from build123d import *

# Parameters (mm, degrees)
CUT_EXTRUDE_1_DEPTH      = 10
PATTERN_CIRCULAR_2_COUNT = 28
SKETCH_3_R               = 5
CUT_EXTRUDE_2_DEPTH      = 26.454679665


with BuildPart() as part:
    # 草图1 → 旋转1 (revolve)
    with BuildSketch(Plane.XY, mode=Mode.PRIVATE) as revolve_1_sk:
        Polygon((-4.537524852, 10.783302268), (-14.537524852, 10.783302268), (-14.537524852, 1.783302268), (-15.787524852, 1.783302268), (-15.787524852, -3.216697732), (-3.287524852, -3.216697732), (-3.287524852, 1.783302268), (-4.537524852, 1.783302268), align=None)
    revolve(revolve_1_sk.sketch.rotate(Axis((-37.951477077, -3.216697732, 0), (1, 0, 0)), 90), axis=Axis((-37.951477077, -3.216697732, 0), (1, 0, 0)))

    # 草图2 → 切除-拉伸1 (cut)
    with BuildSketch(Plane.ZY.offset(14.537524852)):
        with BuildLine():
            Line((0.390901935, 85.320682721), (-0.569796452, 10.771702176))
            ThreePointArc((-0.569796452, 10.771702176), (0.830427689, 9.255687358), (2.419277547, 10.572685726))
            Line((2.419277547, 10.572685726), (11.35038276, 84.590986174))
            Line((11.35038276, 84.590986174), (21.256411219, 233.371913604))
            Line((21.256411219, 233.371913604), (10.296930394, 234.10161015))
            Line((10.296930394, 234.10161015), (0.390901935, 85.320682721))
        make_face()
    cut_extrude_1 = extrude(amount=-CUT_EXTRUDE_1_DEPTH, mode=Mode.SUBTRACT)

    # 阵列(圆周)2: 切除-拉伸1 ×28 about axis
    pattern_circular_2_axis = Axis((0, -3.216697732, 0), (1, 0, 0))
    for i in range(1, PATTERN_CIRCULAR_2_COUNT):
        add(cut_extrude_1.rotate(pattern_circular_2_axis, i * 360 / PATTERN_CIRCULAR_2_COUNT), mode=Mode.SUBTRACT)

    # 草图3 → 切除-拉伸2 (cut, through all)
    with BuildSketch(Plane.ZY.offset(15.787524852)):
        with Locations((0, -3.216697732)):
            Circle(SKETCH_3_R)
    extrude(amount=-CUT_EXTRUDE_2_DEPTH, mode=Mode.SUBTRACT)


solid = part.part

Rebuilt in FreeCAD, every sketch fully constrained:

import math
import FreeCAD as App
import Part
import Sketcher

V = App.Vector
Q = App.Units.Quantity

doc = App.newDocument("Part")
params = doc.addObject("Spreadsheet::Sheet", "Params")
for row, (alias, value) in enumerate([
    ("sketch1_width", "10 mm"),
    ("sketch1_height", "9 mm"),
    ("sketch1_height2", "5 mm"),
    ("sketch1_width2", "12.5 mm"),
    ("revolution_angle", "360 deg"),
    ("sketch2_radius", "1.5 mm"),
    ("pocket1_length", "10 mm"),
    ("sketch3_diameter", "10 mm"),
], start=1):
    params.set(f"A{row}", alias)
    params.set(f"B{row}", "=" + value)
    params.setAlias(f"B{row}", alias)

body = doc.addObject("PartDesign::Body", "Body")

# Sketch on XY plane
sketch1 = body.newObject("Sketcher::SketchObject", "Sketch")
sketch1.AttachmentSupport = (doc.getObject("XY_Plane"), [""])
sketch1.MapMode = "FlatFace"
sketch1.addGeometry([
    Part.LineSegment(V(-4.5, 10.8, 0), V(-14.5, 10.8, 0)),  # 0
    Part.LineSegment(V(-14.5, 10.8, 0), V(-14.5, 1.8, 0)),  # 1
    Part.LineSegment(V(-14.5, 1.8, 0), V(-15.8, 1.8, 0)),  # 2
    Part.LineSegment(V(-15.8, 1.8, 0), V(-15.8, -3.2, 0)),  # 3
    Part.LineSegment(V(-15.8, -3.2, 0), V(-3.3, -3.2, 0)),  # 4
    Part.LineSegment(V(-3.3, -3.2, 0), V(-3.3, 1.8, 0)),  # 5
    Part.LineSegment(V(-3.3, 1.8, 0), V(-4.5, 1.8, 0)),  # 6
    Part.LineSegment(V(-4.5, 1.8, 0), V(-4.5, 10.8, 0)),  # 7
], False)
sketch1.addGeometry(Part.LineSegment(V(-15.8, -3.2, 0), V(-3.3, -3.2, 0)), True)  # axis
sketch1.addConstraint([
    Sketcher.Constraint("Coincident", 0, 2, 1, 1),
    Sketcher.Constraint("Coincident", 1, 2, 2, 1),
    Sketcher.Constraint("Coincident", 2, 2, 3, 1),
    Sketcher.Constraint("Coincident", 3, 2, 4, 1),
    Sketcher.Constraint("Coincident", 4, 2, 5, 1),
    Sketcher.Constraint("Coincident", 5, 2, 6, 1),
    Sketcher.Constraint("Coincident", 6, 2, 7, 1),
    Sketcher.Constraint("Coincident", 7, 2, 0, 1),
    Sketcher.Constraint("Horizontal", 0),
    Sketcher.Constraint("Vertical", 1),
    Sketcher.Constraint("Horizontal", 2),
    Sketcher.Constraint("Vertical", 3),
    Sketcher.Constraint("Horizontal", 4),
    Sketcher.Constraint("Vertical", 5),
    Sketcher.Constraint("Horizontal", 6),
    Sketcher.Constraint("Vertical", 7),
    Sketcher.Constraint("Horizontal", 8),
    Sketcher.Constraint("Coincident", 8, 1, 3, 2),
    Sketcher.Constraint("Horizontal", 2, 2, 5, 2),
    Sketcher.Constraint("Vertical", 5, 2, 8, 2),
    Sketcher.Constraint("Equal", 2, 6),
    Sketcher.Constraint("DistanceX", 0, 2, 0, 1, Q("10 mm")),
    Sketcher.Constraint("DistanceY", 1, 2, 1, 1, Q("9 mm")),
    Sketcher.Constraint("DistanceY", 3, 2, 3, 1, Q("5 mm")),
    Sketcher.Constraint("DistanceX", 4, 1, 4, 2, Q("12.5 mm")),
    Sketcher.Constraint("DistanceX", 0, 2, -1, 1, Q("14.537525 mm")),
    Sketcher.Constraint("DistanceY", -1, 1, 0, 2, Q("10.783302 mm")),
])
sketch1.setExpression("Constraints[21]", "Params.sketch1_width")
sketch1.setExpression("Constraints[22]", "Params.sketch1_height")
sketch1.setExpression("Constraints[23]", "Params.sketch1_height2")
sketch1.setExpression("Constraints[24]", "Params.sketch1_width2")
revolution = body.newObject("PartDesign::Revolution", "Revolution")
revolution.Profile = sketch1
revolution.ReferenceAxis = (sketch1, ["Axis0"])
revolution.setExpression("Angle", "Params.revolution_angle")

# Sketch on YZ plane
sketch2 = body.newObject("Sketcher::SketchObject", "Sketch001")
sketch2.AttachmentSupport = (doc.getObject("YZ_Plane"), [""])
sketch2.MapMode = "FlatFace"
sketch2.AttachmentOffset = App.Placement(V(0, 0, -14.537525), App.Rotation())
sketch2.addGeometry([
    Part.LineSegment(V(85.3, 0.4, 0), V(10.8, -0.6, 0)),  # 0
    Part.ArcOfCircle(Part.Circle(V(10.8, 0.9, 0), V(0, 0, 1), 1.5), math.radians(97), math.radians(271)),  # 1
    Part.LineSegment(V(10.6, 2.4, 0), V(84.6, 11.4, 0)),  # 2
    Part.LineSegment(V(84.6, 11.4, 0), V(233.4, 21.3, 0)),  # 3
    Part.LineSegment(V(233.4, 21.3, 0), V(234.1, 10.3, 0)),  # 4
    Part.LineSegment(V(234.1, 10.3, 0), V(85.3, 0.4, 0)),  # 5
], False)
sketch2.addConstraint([
    Sketcher.Constraint("Tangent", 0, 2, 1, 2),
    Sketcher.Constraint("Tangent", 1, 1, 2, 1),
    Sketcher.Constraint("Coincident", 2, 2, 3, 1),
    Sketcher.Constraint("Coincident", 3, 2, 4, 1),
    Sketcher.Constraint("Coincident", 4, 2, 5, 1),
    Sketcher.Constraint("Coincident", 5, 2, 0, 1),
    Sketcher.Constraint("Perpendicular", 3, 4),
    Sketcher.Constraint("Perpendicular", 4, 5),
    Sketcher.Constraint("Equal", 0, 2),
    Sketcher.Constraint("Equal", 3, 5),
    Sketcher.Constraint("Radius", 1, Q("1.5 mm")),
    Sketcher.Constraint("DistanceY", -1, 1, 5, 2, Q("0.390902 mm")),
    Sketcher.Constraint("DistanceX", 1, 1, 2, 2, Q("74.0183 mm")),
    Sketcher.Constraint("DistanceY", 0, 2, 5, 2, Q("0.960698 mm")),
    Sketcher.Constraint("Distance", 0, Q("74.55517 mm")),
    Sketcher.Constraint("Distance", 3, Q("149.110341 mm")),
    Sketcher.Constraint("DistanceX", -1, 1, 4, 2, Q("234.10161 mm")),
])
sketch2.setExpression("Constraints[10]", "Params.sketch2_radius")
pocket1 = body.newObject("PartDesign::Pocket", "Pocket")
pocket1.Profile = sketch2
pocket1.setExpression("Length", "Params.pocket1_length")
pocket1.Reversed = True
doc.recompute()

datumline = body.newObject("PartDesign::Line", "DatumLine")
datumline.Placement = App.Placement(V(0, -3.216698, 0), App.Rotation(V(0, 0, 1), V(1, 0, 0)))
polarpattern = body.newObject("PartDesign::PolarPattern", "PolarPattern")
polarpattern.Originals = [pocket1]
polarpattern.Axis = (datumline, [""])
polarpattern.Angle = 360
polarpattern.Occurrences = 28
body.Tip = polarpattern

# Sketch on YZ plane
sketch3 = body.newObject("Sketcher::SketchObject", "Sketch002")
sketch3.AttachmentSupport = (doc.getObject("YZ_Plane"), [""])
sketch3.MapMode = "FlatFace"
sketch3.AttachmentOffset = App.Placement(V(0, 0, -15.787525), App.Rotation())
sketch3.addGeometry(Part.Circle(V(-3, 0, 0), V(0, 0, 1), 5), False)
sketch3.addConstraint([
    Sketcher.Constraint("PointOnObject", 0, 3, -1),
    Sketcher.Constraint("Diameter", 0, Q("10 mm")),
    Sketcher.Constraint("DistanceX", 0, 3, -1, 1, Q("3.216698 mm")),
])
sketch3.setExpression("Constraints[1]", "Params.sketch3_diameter")
pocket2 = body.newObject("PartDesign::Pocket", "Pocket001")
pocket2.Profile = sketch3
pocket2.Type = "ThroughAll"
pocket2.Reversed = True

doc.recompute()
